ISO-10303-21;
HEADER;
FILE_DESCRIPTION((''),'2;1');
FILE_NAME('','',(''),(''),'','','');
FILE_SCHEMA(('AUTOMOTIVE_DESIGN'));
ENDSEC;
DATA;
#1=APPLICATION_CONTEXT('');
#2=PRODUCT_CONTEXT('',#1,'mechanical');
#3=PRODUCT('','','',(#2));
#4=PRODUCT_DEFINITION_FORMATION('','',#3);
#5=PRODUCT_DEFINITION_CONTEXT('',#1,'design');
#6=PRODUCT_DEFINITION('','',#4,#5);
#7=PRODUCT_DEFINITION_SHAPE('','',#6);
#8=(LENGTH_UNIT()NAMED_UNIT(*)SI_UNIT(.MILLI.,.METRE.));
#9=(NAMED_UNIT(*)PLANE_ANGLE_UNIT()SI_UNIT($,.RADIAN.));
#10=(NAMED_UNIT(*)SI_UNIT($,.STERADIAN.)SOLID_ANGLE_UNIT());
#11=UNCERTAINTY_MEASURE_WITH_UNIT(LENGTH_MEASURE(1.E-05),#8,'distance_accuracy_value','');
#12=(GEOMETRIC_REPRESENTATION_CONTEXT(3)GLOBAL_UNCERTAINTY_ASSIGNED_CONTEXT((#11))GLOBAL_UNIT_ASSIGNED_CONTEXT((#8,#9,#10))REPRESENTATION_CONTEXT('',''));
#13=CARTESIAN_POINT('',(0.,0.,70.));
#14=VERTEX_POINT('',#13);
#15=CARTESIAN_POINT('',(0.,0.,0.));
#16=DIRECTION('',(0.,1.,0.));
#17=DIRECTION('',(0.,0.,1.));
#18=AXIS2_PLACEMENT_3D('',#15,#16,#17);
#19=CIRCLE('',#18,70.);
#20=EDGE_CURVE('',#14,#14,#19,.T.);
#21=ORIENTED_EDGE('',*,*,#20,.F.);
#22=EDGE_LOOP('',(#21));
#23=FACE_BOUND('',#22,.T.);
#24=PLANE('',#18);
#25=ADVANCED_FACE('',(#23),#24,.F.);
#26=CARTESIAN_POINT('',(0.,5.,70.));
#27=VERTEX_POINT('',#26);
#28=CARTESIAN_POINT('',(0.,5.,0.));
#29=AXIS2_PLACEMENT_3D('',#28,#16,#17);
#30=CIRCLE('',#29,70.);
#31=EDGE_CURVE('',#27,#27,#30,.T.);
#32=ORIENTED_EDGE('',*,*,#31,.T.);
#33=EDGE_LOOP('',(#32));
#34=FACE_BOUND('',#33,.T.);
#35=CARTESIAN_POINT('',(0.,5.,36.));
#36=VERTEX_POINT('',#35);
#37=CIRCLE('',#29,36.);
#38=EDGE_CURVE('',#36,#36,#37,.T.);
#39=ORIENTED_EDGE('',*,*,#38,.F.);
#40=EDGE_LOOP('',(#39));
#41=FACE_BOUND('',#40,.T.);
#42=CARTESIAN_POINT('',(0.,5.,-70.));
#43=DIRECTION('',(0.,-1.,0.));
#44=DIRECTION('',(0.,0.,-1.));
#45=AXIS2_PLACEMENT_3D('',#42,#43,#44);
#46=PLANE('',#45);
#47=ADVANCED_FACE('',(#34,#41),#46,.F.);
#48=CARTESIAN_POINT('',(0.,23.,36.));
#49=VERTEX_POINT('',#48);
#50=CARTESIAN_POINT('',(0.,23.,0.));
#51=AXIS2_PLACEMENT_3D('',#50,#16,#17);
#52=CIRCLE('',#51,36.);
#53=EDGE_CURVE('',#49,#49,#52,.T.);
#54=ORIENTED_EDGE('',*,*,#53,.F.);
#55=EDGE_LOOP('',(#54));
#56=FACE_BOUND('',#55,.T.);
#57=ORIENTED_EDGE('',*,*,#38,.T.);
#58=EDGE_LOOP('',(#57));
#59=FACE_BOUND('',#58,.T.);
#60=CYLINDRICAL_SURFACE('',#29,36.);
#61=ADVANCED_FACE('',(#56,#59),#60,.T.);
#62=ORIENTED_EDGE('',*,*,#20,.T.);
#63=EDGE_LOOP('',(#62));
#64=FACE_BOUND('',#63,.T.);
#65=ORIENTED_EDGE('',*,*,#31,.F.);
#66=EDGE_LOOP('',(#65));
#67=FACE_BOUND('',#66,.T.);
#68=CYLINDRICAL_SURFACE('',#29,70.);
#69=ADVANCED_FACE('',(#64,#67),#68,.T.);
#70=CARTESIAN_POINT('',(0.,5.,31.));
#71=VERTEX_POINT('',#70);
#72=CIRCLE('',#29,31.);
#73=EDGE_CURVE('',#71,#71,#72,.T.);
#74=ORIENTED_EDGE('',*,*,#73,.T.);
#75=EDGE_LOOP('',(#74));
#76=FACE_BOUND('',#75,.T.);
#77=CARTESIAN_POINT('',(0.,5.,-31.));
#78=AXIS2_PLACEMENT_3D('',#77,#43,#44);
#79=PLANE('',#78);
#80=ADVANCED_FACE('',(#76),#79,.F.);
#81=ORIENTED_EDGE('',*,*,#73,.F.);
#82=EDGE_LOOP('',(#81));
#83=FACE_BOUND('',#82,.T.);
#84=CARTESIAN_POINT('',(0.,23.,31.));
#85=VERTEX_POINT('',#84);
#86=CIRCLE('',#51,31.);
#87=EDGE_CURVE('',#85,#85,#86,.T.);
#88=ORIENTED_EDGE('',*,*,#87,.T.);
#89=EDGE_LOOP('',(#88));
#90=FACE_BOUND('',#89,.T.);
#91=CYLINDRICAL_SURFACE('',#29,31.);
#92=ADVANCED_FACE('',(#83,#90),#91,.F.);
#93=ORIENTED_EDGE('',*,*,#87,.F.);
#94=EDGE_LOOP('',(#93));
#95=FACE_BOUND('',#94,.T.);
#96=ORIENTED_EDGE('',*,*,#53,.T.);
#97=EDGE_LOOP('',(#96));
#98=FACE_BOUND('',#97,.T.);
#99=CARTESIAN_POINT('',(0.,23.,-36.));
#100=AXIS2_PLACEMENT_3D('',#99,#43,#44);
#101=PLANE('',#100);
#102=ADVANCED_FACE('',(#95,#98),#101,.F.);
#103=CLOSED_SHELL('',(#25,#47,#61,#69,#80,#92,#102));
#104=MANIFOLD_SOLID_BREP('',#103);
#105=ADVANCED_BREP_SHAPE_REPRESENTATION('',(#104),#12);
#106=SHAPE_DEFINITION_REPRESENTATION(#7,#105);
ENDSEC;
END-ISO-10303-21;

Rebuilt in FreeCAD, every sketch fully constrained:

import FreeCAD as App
import Part
import Sketcher
from FreeCAD import Vector


def add_polygon(sketch, points):
    """Adds a closed chain of lines whose ends are joined by coincident constraints."""
    first, n = sketch.GeometryCount, len(points)
    for a, b in zip(points, points[1:] + points[:1]):
        sketch.addGeometry(Part.LineSegment(App.Vector(*a, 0), App.Vector(*b, 0)), False)
    for i in range(n):
        sketch.addConstraint(Sketcher.Constraint("Coincident", first + i, 2, first + (i + 1) % n, 1))

doc = App.newDocument("Part")
params = doc.addObject("Spreadsheet::Sheet", "Params")
for row, (alias, value) in enumerate([
    ("sketch1_width", "5 mm"),
    ("sketch1_width2", "18 mm"),
    ("sketch1_height", "70 mm"),
    ("sketch1_height2", "34 mm"),
    ("revolution_angle", "360 deg"),
], start=1):
    params.set(f"A{row}", alias)
    params.set(f"B{row}", "=" + value)
    params.setAlias(f"B{row}", alias)

body = doc.addObject("PartDesign::Body", "Body")

# Sketch on YZ plane
sketch1 = body.newObject("Sketcher::SketchObject", "Sketch")
sketch1.AttachmentSupport = (doc.getObject("YZ_Plane"), [""])
sketch1.MapMode = "FlatFace"
add_polygon(sketch1, [(0, 0), (0, -70), (5, -70), (5, -36), (23, -36), (23, -31), (5, -31), (5, 0)])  # lines 0-7
sketch1.addConstraint(Sketcher.Constraint("Vertical", 0))
sketch1.addConstraint(Sketcher.Constraint("Horizontal", 1))
sketch1.addConstraint(Sketcher.Constraint("Vertical", 2))
sketch1.addConstraint(Sketcher.Constraint("Horizontal", 3))
sketch1.addConstraint(Sketcher.Constraint("Vertical", 4))
sketch1.addConstraint(Sketcher.Constraint("Horizontal", 5))
sketch1.addConstraint(Sketcher.Constraint("Vertical", 6))
sketch1.addConstraint(Sketcher.Constraint("Horizontal", 7))
sketch1.addConstraint(Sketcher.Constraint("Coincident", 7, 2, -1, 1))
sketch1.addConstraint(Sketcher.Constraint("Vertical", 2, 2, 5, 2))
sketch1.addConstraint(Sketcher.Constraint("Equal", 7, 4))
sketch1.addConstraint(Sketcher.Constraint("DistanceX", 1, 1, 1, 2, 5.0))
sketch1.addConstraint(Sketcher.Constraint("DistanceX", 3, 1, 3, 2, 18.0))
sketch1.addConstraint(Sketcher.Constraint("DistanceY", 0, 2, 0, 1, 70.0))
sketch1.addConstraint(Sketcher.Constraint("DistanceY", 2, 1, 2, 2, 34.0))
sketch1.setExpression("Constraints[19]", "Params.sketch1_width")
sketch1.setExpression("Constraints[20]", "Params.sketch1_width2")
sketch1.setExpression("Constraints[21]", "Params.sketch1_height")
sketch1.setExpression("Constraints[22]", "Params.sketch1_height2")
revolution = body.newObject("PartDesign::Revolution", "Revolution")
revolution.Profile = sketch1
revolution.ReferenceAxis = (sketch1, ["H_Axis"])
revolution.setExpression("Angle", "Params.revolution_angle")

doc.recompute()
